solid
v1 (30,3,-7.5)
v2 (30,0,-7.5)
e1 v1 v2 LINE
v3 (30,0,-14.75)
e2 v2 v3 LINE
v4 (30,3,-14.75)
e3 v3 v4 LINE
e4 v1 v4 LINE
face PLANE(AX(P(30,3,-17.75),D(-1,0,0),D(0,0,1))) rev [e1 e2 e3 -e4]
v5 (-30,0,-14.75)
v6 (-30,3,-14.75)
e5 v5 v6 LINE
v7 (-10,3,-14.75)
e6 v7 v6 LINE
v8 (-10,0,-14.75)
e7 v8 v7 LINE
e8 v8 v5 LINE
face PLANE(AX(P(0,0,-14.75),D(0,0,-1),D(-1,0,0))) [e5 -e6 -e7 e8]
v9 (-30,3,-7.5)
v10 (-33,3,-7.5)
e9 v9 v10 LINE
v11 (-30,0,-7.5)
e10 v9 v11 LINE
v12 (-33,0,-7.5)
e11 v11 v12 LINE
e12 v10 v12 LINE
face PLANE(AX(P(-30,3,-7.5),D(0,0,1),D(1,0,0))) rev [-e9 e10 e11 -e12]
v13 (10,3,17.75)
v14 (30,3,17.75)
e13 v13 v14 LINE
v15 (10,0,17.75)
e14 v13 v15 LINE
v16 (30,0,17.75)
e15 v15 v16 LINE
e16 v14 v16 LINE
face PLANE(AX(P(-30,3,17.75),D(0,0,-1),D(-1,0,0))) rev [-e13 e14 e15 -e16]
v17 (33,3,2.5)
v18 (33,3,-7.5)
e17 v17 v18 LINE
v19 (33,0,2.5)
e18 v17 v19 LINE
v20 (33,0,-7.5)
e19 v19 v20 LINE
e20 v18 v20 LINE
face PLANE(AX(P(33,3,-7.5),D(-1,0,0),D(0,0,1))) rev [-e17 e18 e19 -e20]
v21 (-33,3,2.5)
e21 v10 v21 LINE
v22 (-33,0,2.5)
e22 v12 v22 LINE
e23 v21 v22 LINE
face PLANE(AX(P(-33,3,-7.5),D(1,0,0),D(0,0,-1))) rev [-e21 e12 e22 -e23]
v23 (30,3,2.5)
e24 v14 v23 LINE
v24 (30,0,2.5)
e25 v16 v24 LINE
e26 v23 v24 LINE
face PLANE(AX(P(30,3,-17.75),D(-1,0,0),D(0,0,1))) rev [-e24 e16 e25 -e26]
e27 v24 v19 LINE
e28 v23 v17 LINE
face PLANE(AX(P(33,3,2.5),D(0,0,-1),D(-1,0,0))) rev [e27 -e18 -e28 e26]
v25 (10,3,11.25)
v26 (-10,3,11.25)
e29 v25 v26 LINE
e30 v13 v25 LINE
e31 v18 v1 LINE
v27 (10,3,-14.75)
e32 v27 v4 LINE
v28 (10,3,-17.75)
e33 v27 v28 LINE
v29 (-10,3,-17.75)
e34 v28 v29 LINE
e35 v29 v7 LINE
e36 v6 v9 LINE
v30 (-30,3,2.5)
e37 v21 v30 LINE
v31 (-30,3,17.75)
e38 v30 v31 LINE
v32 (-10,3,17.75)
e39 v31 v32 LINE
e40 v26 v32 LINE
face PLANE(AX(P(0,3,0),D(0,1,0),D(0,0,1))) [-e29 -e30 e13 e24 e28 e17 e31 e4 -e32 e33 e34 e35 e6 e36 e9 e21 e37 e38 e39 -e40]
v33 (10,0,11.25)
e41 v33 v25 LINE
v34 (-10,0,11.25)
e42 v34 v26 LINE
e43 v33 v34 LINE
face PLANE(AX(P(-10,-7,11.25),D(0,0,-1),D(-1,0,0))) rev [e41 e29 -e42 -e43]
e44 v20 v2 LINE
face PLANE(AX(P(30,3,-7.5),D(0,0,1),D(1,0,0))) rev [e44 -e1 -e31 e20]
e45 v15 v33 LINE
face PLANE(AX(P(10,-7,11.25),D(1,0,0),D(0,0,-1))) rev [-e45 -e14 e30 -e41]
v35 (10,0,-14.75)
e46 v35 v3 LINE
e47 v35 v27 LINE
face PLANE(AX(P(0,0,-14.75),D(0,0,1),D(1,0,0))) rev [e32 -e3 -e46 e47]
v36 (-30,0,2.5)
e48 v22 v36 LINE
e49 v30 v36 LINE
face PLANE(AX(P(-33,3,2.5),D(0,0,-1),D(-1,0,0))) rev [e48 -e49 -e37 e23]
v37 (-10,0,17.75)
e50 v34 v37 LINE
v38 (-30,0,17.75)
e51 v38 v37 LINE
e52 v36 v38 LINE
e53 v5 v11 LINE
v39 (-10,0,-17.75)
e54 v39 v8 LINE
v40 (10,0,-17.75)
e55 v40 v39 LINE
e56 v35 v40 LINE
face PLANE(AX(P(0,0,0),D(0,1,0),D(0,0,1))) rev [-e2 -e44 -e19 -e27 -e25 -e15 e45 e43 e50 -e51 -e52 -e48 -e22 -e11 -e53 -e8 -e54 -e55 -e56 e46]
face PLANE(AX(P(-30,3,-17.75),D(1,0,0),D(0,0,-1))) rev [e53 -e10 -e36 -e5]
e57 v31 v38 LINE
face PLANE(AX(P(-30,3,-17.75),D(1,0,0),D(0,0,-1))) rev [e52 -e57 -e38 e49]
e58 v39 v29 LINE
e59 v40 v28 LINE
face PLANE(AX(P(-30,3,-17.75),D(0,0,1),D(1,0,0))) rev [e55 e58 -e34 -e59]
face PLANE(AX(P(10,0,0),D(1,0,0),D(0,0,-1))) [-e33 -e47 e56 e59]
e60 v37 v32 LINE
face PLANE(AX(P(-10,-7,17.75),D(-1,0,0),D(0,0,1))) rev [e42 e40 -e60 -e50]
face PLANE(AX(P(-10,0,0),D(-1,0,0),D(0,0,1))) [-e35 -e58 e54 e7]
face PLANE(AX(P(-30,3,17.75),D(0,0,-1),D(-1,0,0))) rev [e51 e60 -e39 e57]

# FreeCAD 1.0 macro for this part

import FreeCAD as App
import Part
import Sketcher

V = App.Vector

doc = App.newDocument("Part")
body = doc.addObject("PartDesign::Body", "Body")

# Sketch on XZ plane
sketch1 = body.newObject("Sketcher::SketchObject", "Sketch")
sketch1.AttachmentSupport = (doc.getObject("XZ_Plane"), [""])
sketch1.MapMode = "FlatFace"
sketch1.addGeometry([
    Part.LineSegment(V(-30, -17.75, 0), V(-30, 17.75, 0)),
    Part.LineSegment(V(-30, 17.75, 0), V(30, 17.75, 0)),
    Part.LineSegment(V(30, 17.75, 0), V(30, -17.75, 0)),
    Part.LineSegment(V(30, -17.75, 0), V(-30, -17.75, 0)),
], False)
sketch1.addConstraint([
    Sketcher.Constraint("Coincident", 0, 2, 1, 1),
    Sketcher.Constraint("Coincident", 1, 2, 2, 1),
    Sketcher.Constraint("Coincident", 2, 2, 3, 1),
    Sketcher.Constraint("Coincident", 3, 2, 0, 1),
    Sketcher.Constraint("Vertical", 0),
    Sketcher.Constraint("Horizontal", 1),
    Sketcher.Constraint("Vertical", 2),
    Sketcher.Constraint("Horizontal", 3),
    Sketcher.Constraint("Symmetric", 0, 2, 2, 2, -1, 1),
    Sketcher.Constraint("DistanceX", 1, 1, 1, 2, 60.0),
    Sketcher.Constraint("DistanceY", 0, 1, 0, 2, 35.5),
])
pad1 = body.newObject("PartDesign::Pad", "Pad")
pad1.Profile = sketch1
pad1.Length = 3
pad1.Reversed = True

# Sketch on XZ plane
sketch2 = body.newObject("Sketcher::SketchObject", "Sketch001")
sketch2.AttachmentSupport = (doc.getObject("XZ_Plane"), [""])
sketch2.MapMode = "FlatFace"
sketch2.addGeometry([
    Part.LineSegment(V(-33, -7.5, 0), V(-33, 2.5, 0)),  # 0
    Part.LineSegment(V(-33, 2.5, 0), V(-30, 2.5, 0)),  # 1
    Part.LineSegment(V(-30, 2.5, 0), V(-30, -7.5, 0)),  # 2
    Part.LineSegment(V(-30, -7.5, 0), V(-33, -7.5, 0)),  # 3
    Part.LineSegment(V(30, -7.5, 0), V(30, 2.5, 0)),  # 4
    Part.LineSegment(V(30, 2.5, 0), V(33, 2.5, 0)),  # 5
    Part.LineSegment(V(33, 2.5, 0), V(33, -7.5, 0)),  # 6
    Part.LineSegment(V(33, -7.5, 0), V(30, -7.5, 0)),  # 7
], False)
sketch2.addConstraint([
    Sketcher.Constraint("Coincident", 0, 2, 1, 1),
    Sketcher.Constraint("Coincident", 1, 2, 2, 1),
    Sketcher.Constraint("Coincident", 2, 2, 3, 1),
    Sketcher.Constraint("Coincident", 3, 2, 0, 1),
    Sketcher.Constraint("Coincident", 4, 2, 5, 1),
    Sketcher.Constraint("Coincident", 5, 2, 6, 1),
    Sketcher.Constraint("Coincident", 6, 2, 7, 1),
    Sketcher.Constraint("Coincident", 7, 2, 4, 1),
    Sketcher.Constraint("Vertical", 0),
    Sketcher.Constraint("Horizontal", 1),
    Sketcher.Constraint("Vertical", 2),
    Sketcher.Constraint("Horizontal", 3),
    Sketcher.Constraint("Vertical", 4),
    Sketcher.Constraint("Horizontal", 5),
    Sketcher.Constraint("Vertical", 6),
    Sketcher.Constraint("Horizontal", 7),
    Sketcher.Constraint("Symmetric", 1, 2, 4, 2, -2),
    Sketcher.Constraint("Symmetric", 3, 2, 6, 2, -2),
    Sketcher.Constraint("DistanceX", 1, 1, 1, 2, 3.0),
    Sketcher.Constraint("DistanceY", 0, 1, 0, 2, 10.0),
    Sketcher.Constraint("DistanceX", 0, 2, -1, 1, 33.0),
    Sketcher.Constraint("DistanceY", -1, 1, 0, 2, 2.5),
])
pad2 = body.newObject("PartDesign::Pad", "Pad001")
pad2.Profile = sketch2
pad2.Length = 3
pad2.Reversed = True

# Sketch on XZ plane
sketch3 = body.newObject("Sketcher::SketchObject", "Sketch002")
sketch3.AttachmentSupport = (doc.getObject("XZ_Plane"), [""])
sketch3.MapMode = "FlatFace"
sketch3.AttachmentOffset = App.Placement(V(0, 0, -3), App.Rotation())
sketch3.addGeometry([
    Part.LineSegment(V(-30, -17.75, 0), V(-30, -14.75, 0)),  # 0
    Part.LineSegment(V(-30, -14.75, 0), V(-10, -14.75, 0)),  # 1
    Part.LineSegment(V(-10, -14.75, 0), V(-10, -17.75, 0)),  # 2
    Part.LineSegment(V(-10, -17.75, 0), V(-30, -17.75, 0)),  # 3
    Part.LineSegment(V(10, -17.75, 0), V(10, -14.75, 0)),  # 4
    Part.LineSegment(V(10, -14.75, 0), V(30, -14.75, 0)),  # 5
    Part.LineSegment(V(30, -14.75, 0), V(30, -17.75, 0)),  # 6
    Part.LineSegment(V(30, -17.75, 0), V(10, -17.75, 0)),  # 7
], False)
sketch3.addConstraint([
    Sketcher.Constraint("Coincident", 0, 2, 1, 1),
    Sketcher.Constraint("Coincident", 1, 2, 2, 1),
    Sketcher.Constraint("Coincident", 2, 2, 3, 1),
    Sketcher.Constraint("Coincident", 3, 2, 0, 1),
    Sketcher.Constraint("Coincident", 4, 2, 5, 1),
    Sketcher.Constraint("Coincident", 5, 2, 6, 1),
    Sketcher.Constraint("Coincident", 6, 2, 7, 1),
    Sketcher.Constraint("Coincident", 7, 2, 4, 1),
    Sketcher.Constraint("Vertical", 0),
    Sketcher.Constraint("Horizontal", 1),
    Sketcher.Constraint("Vertical", 2),
    Sketcher.Constraint("Horizontal", 3),
    Sketcher.Constraint("Vertical", 4),
    Sketcher.Constraint("Horizontal", 5),
    Sketcher.Constraint("Vertical", 6),
    Sketcher.Constraint("Horizontal", 7),
    Sketcher.Constraint("Symmetric", 1, 2, 4, 2, -2),
    Sketcher.Constraint("Symmetric", 3, 2, 6, 2, -2),
    Sketcher.Constraint("DistanceX", 1, 1, 1, 2, 20.0),
    Sketcher.Constraint("DistanceY", 0, 1, 0, 2, 3.0),
    Sketcher.Constraint("DistanceX", 0, 2, -1, 1, 30.0),
    Sketcher.Constraint("DistanceY", 0, 2, -1, 1, 14.75),
])
pocket1 = body.newObject("PartDesign::Pocket", "Pocket")
pocket1.Profile = sketch3
pocket1.Length = 3
pocket1.Reversed = True

# Sketch on XZ plane
sketch4 = body.newObject("Sketcher::SketchObject", "Sketch003")
sketch4.AttachmentSupport = (doc.getObject("XZ_Plane"), [""])
sketch4.MapMode = "FlatFace"
sketch4.AttachmentOffset = App.Placement(V(0, 0, -3), App.Rotation())
sketch4.addGeometry([
    Part.LineSegment(V(-10, 11.25, 0), V(-10, 17.75, 0)),
    Part.LineSegment(V(-10, 17.75, 0), V(10, 17.75, 0)),
    Part.LineSegment(V(10, 17.75, 0), V(10, 11.25, 0)),
    Part.LineSegment(V(10, 11.25, 0), V(-10, 11.25, 0)),
], False)
sketch4.addConstraint([
    Sketcher.Constraint("Coincident", 0, 2, 1, 1),
    Sketcher.Constraint("Coincident", 1, 2, 2, 1),
    Sketcher.Constraint("Coincident", 2, 2, 3, 1),
    Sketcher.Constraint("Coincident", 3, 2, 0, 1),
    Sketcher.Constraint("Vertical", 0),
    Sketcher.Constraint("Horizontal", 1),
    Sketcher.Constraint("Vertical", 2),
    Sketcher.Constraint("Horizontal", 3),
    Sketcher.Constraint("DistanceX", 1, 1, 1, 2, 20.0),
    Sketcher.Constraint("DistanceY", 0, 1, 0, 2, 6.5),
    Sketcher.Constraint("DistanceX", 0, 2, -1, 1, 10.0),
    Sketcher.Constraint("DistanceY", -1, 1, 0, 2, 17.75),
])
pocket2 = body.newObject("PartDesign::Pocket", "Pocket001")
pocket2.Profile = sketch4
pocket2.Length = 10
pocket2.Reversed = True

doc.recompute()
